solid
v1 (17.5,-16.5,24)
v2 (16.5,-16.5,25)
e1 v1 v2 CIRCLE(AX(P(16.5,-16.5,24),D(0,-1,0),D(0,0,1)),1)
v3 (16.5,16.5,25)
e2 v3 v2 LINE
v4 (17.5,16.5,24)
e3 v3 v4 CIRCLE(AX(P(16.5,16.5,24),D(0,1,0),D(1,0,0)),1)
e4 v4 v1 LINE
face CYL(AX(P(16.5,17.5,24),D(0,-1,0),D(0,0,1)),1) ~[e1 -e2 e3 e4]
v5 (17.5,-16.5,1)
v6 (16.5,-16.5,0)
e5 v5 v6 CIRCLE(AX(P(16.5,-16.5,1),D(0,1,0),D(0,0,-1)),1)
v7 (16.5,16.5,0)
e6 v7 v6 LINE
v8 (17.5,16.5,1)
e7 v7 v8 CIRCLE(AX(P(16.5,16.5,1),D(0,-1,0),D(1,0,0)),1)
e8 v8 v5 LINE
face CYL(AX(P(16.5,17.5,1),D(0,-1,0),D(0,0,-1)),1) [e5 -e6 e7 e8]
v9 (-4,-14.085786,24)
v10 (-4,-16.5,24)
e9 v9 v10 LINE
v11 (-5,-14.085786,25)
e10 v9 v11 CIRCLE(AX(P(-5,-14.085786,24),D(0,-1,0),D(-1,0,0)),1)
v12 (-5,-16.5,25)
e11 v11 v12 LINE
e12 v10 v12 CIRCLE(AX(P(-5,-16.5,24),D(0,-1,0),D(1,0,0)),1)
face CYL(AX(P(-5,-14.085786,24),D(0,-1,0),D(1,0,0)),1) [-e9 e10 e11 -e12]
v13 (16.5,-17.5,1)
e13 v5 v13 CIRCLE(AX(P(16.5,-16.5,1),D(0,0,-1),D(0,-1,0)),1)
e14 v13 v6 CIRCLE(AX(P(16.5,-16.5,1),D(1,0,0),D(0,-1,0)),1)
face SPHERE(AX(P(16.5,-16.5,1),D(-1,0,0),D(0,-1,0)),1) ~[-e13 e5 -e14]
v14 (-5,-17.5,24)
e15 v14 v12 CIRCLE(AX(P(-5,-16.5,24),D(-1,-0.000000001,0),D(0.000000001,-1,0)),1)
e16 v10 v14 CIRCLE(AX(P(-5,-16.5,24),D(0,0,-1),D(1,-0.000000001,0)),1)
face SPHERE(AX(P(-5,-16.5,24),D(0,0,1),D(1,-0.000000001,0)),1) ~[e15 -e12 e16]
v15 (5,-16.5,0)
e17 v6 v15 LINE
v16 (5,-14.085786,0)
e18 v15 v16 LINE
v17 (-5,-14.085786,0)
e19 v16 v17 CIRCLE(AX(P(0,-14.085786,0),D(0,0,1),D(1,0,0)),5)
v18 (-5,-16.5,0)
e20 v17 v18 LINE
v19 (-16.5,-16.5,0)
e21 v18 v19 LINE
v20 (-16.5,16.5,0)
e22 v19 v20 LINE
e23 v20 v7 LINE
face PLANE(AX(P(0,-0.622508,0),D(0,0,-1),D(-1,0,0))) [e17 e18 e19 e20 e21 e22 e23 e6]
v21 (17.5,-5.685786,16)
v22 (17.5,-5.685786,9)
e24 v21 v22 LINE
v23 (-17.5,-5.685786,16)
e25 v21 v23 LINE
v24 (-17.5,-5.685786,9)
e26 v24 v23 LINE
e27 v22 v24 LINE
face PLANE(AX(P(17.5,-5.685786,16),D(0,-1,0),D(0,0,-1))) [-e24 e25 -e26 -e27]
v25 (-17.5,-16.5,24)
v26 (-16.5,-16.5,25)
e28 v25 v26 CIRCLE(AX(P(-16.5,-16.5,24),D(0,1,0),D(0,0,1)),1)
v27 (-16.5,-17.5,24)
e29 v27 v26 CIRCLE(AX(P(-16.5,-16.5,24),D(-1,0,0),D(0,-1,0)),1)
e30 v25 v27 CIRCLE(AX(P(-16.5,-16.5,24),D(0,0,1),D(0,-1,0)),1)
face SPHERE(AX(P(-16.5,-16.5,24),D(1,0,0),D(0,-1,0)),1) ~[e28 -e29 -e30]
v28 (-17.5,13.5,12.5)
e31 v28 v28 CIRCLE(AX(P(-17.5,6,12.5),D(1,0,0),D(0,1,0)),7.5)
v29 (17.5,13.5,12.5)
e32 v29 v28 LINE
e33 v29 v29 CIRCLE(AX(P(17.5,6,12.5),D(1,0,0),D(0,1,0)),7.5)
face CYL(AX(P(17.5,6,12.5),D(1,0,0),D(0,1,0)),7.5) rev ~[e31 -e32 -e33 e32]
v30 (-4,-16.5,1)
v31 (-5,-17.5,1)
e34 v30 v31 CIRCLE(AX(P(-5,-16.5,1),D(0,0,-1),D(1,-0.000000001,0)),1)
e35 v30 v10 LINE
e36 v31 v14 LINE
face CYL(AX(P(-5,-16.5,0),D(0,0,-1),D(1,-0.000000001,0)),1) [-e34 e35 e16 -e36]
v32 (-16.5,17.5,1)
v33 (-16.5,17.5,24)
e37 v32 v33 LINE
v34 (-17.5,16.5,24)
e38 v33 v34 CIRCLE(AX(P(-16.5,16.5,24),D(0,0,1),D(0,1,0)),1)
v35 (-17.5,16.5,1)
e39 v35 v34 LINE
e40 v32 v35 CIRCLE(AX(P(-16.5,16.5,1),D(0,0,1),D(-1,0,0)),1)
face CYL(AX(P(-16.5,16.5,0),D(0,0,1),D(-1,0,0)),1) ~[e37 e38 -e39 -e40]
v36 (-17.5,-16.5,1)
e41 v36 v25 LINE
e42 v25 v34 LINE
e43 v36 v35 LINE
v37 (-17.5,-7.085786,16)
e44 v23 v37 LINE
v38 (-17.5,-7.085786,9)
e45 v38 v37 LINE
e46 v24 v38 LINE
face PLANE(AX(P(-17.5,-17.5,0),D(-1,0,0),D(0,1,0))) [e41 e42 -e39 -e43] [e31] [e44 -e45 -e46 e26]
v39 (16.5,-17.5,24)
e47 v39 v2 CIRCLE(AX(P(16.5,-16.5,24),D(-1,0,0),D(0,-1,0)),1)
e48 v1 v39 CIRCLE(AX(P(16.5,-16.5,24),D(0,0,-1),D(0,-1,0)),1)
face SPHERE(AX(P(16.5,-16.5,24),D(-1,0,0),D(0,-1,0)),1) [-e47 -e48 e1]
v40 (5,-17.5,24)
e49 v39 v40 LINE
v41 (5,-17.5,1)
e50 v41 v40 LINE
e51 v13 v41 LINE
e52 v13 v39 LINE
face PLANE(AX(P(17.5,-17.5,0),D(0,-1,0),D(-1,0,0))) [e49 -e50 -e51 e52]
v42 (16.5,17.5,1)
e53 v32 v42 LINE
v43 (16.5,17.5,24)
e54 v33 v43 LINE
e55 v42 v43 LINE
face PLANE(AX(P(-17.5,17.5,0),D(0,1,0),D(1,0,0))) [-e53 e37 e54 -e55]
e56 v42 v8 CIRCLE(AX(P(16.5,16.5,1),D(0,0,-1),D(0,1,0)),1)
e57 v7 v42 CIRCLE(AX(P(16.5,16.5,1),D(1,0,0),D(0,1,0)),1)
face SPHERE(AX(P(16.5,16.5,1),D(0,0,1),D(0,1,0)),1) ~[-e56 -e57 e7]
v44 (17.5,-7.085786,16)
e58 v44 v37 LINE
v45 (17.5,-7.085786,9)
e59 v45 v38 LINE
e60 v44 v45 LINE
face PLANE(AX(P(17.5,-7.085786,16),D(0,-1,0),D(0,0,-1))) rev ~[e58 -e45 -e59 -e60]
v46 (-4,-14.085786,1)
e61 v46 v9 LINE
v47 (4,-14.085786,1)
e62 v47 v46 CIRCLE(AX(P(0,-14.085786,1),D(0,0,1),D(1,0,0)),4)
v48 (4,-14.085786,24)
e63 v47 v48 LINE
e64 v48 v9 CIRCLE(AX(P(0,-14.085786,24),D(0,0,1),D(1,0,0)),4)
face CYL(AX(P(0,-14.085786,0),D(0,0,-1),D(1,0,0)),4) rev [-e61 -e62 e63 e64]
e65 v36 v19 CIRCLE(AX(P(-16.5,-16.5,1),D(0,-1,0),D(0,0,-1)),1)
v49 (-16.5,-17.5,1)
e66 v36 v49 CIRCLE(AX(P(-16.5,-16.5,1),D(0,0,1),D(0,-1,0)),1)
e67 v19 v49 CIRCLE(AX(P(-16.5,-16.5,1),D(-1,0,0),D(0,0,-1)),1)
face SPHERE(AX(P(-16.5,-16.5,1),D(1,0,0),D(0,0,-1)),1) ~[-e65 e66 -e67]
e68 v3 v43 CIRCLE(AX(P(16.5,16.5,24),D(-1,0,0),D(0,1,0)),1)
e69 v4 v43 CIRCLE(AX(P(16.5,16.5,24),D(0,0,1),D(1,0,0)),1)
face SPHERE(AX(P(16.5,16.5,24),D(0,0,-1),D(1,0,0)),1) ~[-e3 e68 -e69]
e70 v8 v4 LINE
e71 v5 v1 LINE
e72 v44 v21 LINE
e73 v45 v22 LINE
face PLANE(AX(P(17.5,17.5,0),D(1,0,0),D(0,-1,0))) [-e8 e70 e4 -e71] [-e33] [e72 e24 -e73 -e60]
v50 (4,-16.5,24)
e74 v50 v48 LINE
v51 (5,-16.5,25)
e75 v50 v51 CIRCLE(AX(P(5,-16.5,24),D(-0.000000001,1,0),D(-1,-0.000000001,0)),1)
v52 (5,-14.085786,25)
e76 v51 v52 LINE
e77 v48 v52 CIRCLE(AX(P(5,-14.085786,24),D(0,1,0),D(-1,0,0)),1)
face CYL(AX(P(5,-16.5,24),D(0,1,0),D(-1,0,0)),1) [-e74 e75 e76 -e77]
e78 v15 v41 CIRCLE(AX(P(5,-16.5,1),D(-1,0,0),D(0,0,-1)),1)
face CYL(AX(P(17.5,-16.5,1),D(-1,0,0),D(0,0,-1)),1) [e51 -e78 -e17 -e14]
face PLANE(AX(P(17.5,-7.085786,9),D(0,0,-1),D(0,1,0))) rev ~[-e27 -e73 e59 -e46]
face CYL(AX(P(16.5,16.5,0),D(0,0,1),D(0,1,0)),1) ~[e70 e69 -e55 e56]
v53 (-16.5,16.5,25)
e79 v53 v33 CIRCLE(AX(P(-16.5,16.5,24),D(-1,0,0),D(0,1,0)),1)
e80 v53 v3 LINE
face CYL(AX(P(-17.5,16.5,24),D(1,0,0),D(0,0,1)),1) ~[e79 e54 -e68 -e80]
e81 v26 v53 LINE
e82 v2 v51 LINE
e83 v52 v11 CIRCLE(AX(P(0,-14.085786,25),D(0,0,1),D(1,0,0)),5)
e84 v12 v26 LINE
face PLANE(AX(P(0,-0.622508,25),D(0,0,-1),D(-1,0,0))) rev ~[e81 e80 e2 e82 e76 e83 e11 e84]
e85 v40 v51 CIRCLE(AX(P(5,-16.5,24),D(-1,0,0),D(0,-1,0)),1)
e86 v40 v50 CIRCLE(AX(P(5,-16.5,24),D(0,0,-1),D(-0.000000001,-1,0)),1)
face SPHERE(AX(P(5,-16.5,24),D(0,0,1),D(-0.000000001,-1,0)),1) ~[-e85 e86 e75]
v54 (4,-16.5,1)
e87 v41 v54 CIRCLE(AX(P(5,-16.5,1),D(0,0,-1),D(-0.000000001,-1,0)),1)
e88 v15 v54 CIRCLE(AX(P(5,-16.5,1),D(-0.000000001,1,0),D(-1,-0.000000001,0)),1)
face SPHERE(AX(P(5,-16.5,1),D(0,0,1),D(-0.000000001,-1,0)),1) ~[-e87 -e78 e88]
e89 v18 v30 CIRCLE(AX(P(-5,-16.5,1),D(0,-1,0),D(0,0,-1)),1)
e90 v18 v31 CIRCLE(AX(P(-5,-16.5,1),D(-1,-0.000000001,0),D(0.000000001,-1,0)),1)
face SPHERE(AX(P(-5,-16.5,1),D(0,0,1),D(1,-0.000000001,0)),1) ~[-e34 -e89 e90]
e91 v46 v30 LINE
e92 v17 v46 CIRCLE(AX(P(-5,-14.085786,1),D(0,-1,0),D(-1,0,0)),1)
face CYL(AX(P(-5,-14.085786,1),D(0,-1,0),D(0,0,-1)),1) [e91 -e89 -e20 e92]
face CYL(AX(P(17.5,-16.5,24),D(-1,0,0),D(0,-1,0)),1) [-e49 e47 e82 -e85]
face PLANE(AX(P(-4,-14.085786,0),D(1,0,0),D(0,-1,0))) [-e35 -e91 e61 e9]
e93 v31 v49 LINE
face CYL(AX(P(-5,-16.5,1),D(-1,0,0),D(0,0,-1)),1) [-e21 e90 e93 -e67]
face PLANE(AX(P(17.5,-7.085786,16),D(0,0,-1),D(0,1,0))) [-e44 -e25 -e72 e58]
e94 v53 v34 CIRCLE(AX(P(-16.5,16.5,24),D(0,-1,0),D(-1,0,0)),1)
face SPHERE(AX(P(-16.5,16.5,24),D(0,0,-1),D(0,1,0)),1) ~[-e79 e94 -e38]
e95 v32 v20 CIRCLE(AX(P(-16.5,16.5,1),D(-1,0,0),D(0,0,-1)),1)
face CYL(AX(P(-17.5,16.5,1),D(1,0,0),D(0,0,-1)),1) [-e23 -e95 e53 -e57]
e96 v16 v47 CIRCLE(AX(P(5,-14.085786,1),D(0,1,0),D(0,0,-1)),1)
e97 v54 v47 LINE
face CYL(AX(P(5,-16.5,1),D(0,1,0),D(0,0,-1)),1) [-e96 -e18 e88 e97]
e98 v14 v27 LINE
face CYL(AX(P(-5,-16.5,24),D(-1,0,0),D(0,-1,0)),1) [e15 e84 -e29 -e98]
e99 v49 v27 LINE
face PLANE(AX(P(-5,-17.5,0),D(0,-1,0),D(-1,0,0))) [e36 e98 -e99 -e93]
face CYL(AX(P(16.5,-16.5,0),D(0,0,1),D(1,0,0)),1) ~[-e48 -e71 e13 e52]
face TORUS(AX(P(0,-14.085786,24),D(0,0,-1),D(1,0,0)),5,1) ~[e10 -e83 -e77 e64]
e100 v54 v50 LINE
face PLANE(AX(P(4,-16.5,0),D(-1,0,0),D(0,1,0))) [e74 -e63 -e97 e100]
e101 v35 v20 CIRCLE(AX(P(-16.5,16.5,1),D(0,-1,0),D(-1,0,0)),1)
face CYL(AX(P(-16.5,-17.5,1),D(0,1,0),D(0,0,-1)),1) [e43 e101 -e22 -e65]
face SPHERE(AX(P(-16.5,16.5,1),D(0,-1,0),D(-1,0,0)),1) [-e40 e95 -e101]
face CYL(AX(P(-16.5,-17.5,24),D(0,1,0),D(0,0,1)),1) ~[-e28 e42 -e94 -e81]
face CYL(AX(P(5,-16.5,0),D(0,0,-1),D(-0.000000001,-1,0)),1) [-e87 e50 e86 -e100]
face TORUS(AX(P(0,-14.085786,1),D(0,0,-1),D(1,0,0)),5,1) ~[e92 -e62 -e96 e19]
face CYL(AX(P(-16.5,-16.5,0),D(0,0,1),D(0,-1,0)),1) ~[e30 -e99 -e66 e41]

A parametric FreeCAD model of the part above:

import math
import FreeCAD as App
import Part
import Sketcher

V = App.Vector
Q = App.Units.Quantity


def edges_at(feature, points):
    """Names of the edges that pass closest to the given points."""
    edges = feature.Shape.Edges
    near = lambda p: min(range(len(edges)), key=lambda i: edges[i].distToShape(Part.Vertex(*p))[0])
    return sorted({f"Edge{near(p) + 1}" for p in points})


def add_polygon(sketch, points):
    """Adds a closed chain of lines whose ends are joined by coincident constraints."""
    first, n = sketch.GeometryCount, len(points)
    for a, b in zip(points, points[1:] + points[:1]):
        sketch.addGeometry(Part.LineSegment(App.Vector(*a, 0), App.Vector(*b, 0)), False)
    for i in range(n):
        sketch.addConstraint(Sketcher.Constraint("Coincident", first + i, 2, first + (i + 1) % n, 1))

doc = App.newDocument("Part")
body = doc.addObject("PartDesign::Body", "Body")

# Sketch on XY plane
sketch1 = body.newObject("Sketcher::SketchObject", "Sketch")
sketch1.AttachmentSupport = (doc.getObject("XY_Plane"), [""])
sketch1.MapMode = "FlatFace"
sketch1.addGeometry([
    Part.LineSegment(V(-4, -16.5, 0), V(-4, -14.1, 0)),  # 0
    Part.ArcOfCircle(Part.Circle(V(0, -14.1, 0), V(0, 0, 1), 4), math.radians(0), math.radians(180)),  # 1
    Part.LineSegment(V(4, -14.1, 0), V(4, -16.5, 0)),  # 2
    Part.ArcOfCircle(Part.Circle(V(5, -16.5, 0), V(0, 0, 1), 1), math.radians(-180), math.radians(-90)),  # 3
    Part.LineSegment(V(5, -17.5, 0), V(17.5, -17.5, 0)),  # 4
    Part.LineSegment(V(17.5, -17.5, 0), V(17.5, 17.5, 0)),  # 5
    Part.LineSegment(V(17.5, 17.5, 0), V(-17.5, 17.5, 0)),  # 6
    Part.LineSegment(V(-17.5, 17.5, 0), V(-17.5, -17.5, 0)),  # 7
    Part.LineSegment(V(-17.5, -17.5, 0), V(-5, -17.5, 0)),  # 8
    Part.ArcOfCircle(Part.Circle(V(-5, -16.5, 0), V(0, 0, 1), 1), math.radians(-90), math.radians(0)),  # 9
], False)
sketch1.addConstraint([
    Sketcher.Constraint("Tangent", 0, 2, 1, 2),
    Sketcher.Constraint("Tangent", 1, 1, 2, 1),
    Sketcher.Constraint("Tangent", 2, 2, 3, 1),
    Sketcher.Constraint("Tangent", 3, 2, 4, 1),
    Sketcher.Constraint("Coincident", 4, 2, 5, 1),
    Sketcher.Constraint("Coincident", 5, 2, 6, 1),
    Sketcher.Constraint("Coincident", 6, 2, 7, 1),
    Sketcher.Constraint("Coincident", 7, 2, 8, 1),
    Sketcher.Constraint("Tangent", 8, 2, 9, 1),
    Sketcher.Constraint("Tangent", 9, 2, 0, 1),
    Sketcher.Constraint("Vertical", 0),
    Sketcher.Constraint("Vertical", 2),
    Sketcher.Constraint("Horizontal", 4),
    Sketcher.Constraint("Vertical", 5),
    Sketcher.Constraint("Horizontal", 6),
    Sketcher.Constraint("Vertical", 7),
    Sketcher.Constraint("Horizontal", 8),
    Sketcher.Constraint("Equal", 3, 9),
    Sketcher.Constraint("Symmetric", 4, 2, 6, 2, -1, 1),
    Sketcher.Constraint("Symmetric", 3, 3, 9, 3, -2),
    Sketcher.Constraint("Equal", 6, 5),
    Sketcher.Constraint("Radius", 1, Q("4 mm")),
    Sketcher.Constraint("Radius", 3, Q("1 mm")),
    Sketcher.Constraint("DistanceX", 6, 2, 6, 1, Q("35 mm")),
    Sketcher.Constraint("DistanceY", 0, 1, 0, 2, Q("2.414214 mm")),
])
pad1 = body.newObject("PartDesign::Pad", "Pad")
pad1.Profile = sketch1
pad1.Length = 25

# Sketch on YZ plane
sketch2 = body.newObject("Sketcher::SketchObject", "Sketch001")
sketch2.AttachmentSupport = (doc.getObject("YZ_Plane"), [""])
sketch2.MapMode = "FlatFace"
sketch2.AttachmentOffset = App.Placement(V(0, 0, 17.5), App.Rotation())
sketch2.addGeometry(Part.Circle(V(6, 12, 0), V(0, 0, 1), 8), False)
sketch2.addConstraint([
    Sketcher.Constraint("Diameter", 0, Q("15 mm")),
    Sketcher.Constraint("DistanceX", -1, 1, 0, 3, Q("6 mm")),
    Sketcher.Constraint("DistanceY", -1, 1, 0, 3, Q("12.5 mm")),
])
pocket1 = body.newObject("PartDesign::Pocket", "Pocket")
pocket1.Profile = sketch2
pocket1.Type = "ThroughAll"

# Sketch on YZ plane
sketch3 = body.newObject("Sketcher::SketchObject", "Sketch002")
sketch3.AttachmentSupport = (doc.getObject("YZ_Plane"), [""])
sketch3.MapMode = "FlatFace"
sketch3.AttachmentOffset = App.Placement(V(0, 0, 17.5), App.Rotation())
add_polygon(sketch3, [(-5.7, 16), (-7.1, 16), (-7.1, 9), (-5.7, 9)])  # lines 0-3
sketch3.addConstraint([
    Sketcher.Constraint("Horizontal", 0),
    Sketcher.Constraint("Vertical", 1),
    Sketcher.Constraint("Horizontal", 2),
    Sketcher.Constraint("Vertical", 3),
    Sketcher.Constraint("DistanceY", 1, 2, 1, 1, Q("7 mm")),
    Sketcher.Constraint("DistanceX", 0, 2, 0, 1, Q("1.4 mm")),
    Sketcher.Constraint("DistanceY", -1, 1, 0, 2, Q("16 mm")),
    Sketcher.Constraint("DistanceX", 0, 2, -1, 1, Q("7.085786 mm")),
])
pocket2 = body.newObject("PartDesign::Pocket", "Pocket001")
pocket2.Profile = sketch3
pocket2.Type = "ThroughAll"
doc.recompute()

fillet = body.newObject("PartDesign::Fillet", "Fillet")
fillet.Base = (pocket2, edges_at(pocket2, [
    (-4.293, -17.207, 25),
    (11.25, -17.5, 0),
    (4.293, -17.207, 0),
    (4, -15.293, 0),
    (0, -10.086, 0),
    (-4, -15.293, 0),
    (-4.293, -17.207, 0),
    (-11.25, -17.5, 0),
    (-17.5, 0, 0),
    (-4, -15.293, 25),
    (0, -10.086, 25),
    (-17.5, 17.5, 12.5),
    (17.5, 17.5, 12.5),
    (17.5, -17.5, 12.5),
    (-17.5, -17.5, 12.5),
    (4, -15.293, 25),
    (4.293, -17.207, 25),
    (11.25, -17.5, 25),
    (17.5, 0, 25),
    (0, 17.5, 25),
    (-17.5, 0, 25),
    (-11.25, -17.5, 25),
    (0, 17.5, 0),
    (17.5, 0, 0),
]))
fillet.Radius = 1

doc.recompute()
